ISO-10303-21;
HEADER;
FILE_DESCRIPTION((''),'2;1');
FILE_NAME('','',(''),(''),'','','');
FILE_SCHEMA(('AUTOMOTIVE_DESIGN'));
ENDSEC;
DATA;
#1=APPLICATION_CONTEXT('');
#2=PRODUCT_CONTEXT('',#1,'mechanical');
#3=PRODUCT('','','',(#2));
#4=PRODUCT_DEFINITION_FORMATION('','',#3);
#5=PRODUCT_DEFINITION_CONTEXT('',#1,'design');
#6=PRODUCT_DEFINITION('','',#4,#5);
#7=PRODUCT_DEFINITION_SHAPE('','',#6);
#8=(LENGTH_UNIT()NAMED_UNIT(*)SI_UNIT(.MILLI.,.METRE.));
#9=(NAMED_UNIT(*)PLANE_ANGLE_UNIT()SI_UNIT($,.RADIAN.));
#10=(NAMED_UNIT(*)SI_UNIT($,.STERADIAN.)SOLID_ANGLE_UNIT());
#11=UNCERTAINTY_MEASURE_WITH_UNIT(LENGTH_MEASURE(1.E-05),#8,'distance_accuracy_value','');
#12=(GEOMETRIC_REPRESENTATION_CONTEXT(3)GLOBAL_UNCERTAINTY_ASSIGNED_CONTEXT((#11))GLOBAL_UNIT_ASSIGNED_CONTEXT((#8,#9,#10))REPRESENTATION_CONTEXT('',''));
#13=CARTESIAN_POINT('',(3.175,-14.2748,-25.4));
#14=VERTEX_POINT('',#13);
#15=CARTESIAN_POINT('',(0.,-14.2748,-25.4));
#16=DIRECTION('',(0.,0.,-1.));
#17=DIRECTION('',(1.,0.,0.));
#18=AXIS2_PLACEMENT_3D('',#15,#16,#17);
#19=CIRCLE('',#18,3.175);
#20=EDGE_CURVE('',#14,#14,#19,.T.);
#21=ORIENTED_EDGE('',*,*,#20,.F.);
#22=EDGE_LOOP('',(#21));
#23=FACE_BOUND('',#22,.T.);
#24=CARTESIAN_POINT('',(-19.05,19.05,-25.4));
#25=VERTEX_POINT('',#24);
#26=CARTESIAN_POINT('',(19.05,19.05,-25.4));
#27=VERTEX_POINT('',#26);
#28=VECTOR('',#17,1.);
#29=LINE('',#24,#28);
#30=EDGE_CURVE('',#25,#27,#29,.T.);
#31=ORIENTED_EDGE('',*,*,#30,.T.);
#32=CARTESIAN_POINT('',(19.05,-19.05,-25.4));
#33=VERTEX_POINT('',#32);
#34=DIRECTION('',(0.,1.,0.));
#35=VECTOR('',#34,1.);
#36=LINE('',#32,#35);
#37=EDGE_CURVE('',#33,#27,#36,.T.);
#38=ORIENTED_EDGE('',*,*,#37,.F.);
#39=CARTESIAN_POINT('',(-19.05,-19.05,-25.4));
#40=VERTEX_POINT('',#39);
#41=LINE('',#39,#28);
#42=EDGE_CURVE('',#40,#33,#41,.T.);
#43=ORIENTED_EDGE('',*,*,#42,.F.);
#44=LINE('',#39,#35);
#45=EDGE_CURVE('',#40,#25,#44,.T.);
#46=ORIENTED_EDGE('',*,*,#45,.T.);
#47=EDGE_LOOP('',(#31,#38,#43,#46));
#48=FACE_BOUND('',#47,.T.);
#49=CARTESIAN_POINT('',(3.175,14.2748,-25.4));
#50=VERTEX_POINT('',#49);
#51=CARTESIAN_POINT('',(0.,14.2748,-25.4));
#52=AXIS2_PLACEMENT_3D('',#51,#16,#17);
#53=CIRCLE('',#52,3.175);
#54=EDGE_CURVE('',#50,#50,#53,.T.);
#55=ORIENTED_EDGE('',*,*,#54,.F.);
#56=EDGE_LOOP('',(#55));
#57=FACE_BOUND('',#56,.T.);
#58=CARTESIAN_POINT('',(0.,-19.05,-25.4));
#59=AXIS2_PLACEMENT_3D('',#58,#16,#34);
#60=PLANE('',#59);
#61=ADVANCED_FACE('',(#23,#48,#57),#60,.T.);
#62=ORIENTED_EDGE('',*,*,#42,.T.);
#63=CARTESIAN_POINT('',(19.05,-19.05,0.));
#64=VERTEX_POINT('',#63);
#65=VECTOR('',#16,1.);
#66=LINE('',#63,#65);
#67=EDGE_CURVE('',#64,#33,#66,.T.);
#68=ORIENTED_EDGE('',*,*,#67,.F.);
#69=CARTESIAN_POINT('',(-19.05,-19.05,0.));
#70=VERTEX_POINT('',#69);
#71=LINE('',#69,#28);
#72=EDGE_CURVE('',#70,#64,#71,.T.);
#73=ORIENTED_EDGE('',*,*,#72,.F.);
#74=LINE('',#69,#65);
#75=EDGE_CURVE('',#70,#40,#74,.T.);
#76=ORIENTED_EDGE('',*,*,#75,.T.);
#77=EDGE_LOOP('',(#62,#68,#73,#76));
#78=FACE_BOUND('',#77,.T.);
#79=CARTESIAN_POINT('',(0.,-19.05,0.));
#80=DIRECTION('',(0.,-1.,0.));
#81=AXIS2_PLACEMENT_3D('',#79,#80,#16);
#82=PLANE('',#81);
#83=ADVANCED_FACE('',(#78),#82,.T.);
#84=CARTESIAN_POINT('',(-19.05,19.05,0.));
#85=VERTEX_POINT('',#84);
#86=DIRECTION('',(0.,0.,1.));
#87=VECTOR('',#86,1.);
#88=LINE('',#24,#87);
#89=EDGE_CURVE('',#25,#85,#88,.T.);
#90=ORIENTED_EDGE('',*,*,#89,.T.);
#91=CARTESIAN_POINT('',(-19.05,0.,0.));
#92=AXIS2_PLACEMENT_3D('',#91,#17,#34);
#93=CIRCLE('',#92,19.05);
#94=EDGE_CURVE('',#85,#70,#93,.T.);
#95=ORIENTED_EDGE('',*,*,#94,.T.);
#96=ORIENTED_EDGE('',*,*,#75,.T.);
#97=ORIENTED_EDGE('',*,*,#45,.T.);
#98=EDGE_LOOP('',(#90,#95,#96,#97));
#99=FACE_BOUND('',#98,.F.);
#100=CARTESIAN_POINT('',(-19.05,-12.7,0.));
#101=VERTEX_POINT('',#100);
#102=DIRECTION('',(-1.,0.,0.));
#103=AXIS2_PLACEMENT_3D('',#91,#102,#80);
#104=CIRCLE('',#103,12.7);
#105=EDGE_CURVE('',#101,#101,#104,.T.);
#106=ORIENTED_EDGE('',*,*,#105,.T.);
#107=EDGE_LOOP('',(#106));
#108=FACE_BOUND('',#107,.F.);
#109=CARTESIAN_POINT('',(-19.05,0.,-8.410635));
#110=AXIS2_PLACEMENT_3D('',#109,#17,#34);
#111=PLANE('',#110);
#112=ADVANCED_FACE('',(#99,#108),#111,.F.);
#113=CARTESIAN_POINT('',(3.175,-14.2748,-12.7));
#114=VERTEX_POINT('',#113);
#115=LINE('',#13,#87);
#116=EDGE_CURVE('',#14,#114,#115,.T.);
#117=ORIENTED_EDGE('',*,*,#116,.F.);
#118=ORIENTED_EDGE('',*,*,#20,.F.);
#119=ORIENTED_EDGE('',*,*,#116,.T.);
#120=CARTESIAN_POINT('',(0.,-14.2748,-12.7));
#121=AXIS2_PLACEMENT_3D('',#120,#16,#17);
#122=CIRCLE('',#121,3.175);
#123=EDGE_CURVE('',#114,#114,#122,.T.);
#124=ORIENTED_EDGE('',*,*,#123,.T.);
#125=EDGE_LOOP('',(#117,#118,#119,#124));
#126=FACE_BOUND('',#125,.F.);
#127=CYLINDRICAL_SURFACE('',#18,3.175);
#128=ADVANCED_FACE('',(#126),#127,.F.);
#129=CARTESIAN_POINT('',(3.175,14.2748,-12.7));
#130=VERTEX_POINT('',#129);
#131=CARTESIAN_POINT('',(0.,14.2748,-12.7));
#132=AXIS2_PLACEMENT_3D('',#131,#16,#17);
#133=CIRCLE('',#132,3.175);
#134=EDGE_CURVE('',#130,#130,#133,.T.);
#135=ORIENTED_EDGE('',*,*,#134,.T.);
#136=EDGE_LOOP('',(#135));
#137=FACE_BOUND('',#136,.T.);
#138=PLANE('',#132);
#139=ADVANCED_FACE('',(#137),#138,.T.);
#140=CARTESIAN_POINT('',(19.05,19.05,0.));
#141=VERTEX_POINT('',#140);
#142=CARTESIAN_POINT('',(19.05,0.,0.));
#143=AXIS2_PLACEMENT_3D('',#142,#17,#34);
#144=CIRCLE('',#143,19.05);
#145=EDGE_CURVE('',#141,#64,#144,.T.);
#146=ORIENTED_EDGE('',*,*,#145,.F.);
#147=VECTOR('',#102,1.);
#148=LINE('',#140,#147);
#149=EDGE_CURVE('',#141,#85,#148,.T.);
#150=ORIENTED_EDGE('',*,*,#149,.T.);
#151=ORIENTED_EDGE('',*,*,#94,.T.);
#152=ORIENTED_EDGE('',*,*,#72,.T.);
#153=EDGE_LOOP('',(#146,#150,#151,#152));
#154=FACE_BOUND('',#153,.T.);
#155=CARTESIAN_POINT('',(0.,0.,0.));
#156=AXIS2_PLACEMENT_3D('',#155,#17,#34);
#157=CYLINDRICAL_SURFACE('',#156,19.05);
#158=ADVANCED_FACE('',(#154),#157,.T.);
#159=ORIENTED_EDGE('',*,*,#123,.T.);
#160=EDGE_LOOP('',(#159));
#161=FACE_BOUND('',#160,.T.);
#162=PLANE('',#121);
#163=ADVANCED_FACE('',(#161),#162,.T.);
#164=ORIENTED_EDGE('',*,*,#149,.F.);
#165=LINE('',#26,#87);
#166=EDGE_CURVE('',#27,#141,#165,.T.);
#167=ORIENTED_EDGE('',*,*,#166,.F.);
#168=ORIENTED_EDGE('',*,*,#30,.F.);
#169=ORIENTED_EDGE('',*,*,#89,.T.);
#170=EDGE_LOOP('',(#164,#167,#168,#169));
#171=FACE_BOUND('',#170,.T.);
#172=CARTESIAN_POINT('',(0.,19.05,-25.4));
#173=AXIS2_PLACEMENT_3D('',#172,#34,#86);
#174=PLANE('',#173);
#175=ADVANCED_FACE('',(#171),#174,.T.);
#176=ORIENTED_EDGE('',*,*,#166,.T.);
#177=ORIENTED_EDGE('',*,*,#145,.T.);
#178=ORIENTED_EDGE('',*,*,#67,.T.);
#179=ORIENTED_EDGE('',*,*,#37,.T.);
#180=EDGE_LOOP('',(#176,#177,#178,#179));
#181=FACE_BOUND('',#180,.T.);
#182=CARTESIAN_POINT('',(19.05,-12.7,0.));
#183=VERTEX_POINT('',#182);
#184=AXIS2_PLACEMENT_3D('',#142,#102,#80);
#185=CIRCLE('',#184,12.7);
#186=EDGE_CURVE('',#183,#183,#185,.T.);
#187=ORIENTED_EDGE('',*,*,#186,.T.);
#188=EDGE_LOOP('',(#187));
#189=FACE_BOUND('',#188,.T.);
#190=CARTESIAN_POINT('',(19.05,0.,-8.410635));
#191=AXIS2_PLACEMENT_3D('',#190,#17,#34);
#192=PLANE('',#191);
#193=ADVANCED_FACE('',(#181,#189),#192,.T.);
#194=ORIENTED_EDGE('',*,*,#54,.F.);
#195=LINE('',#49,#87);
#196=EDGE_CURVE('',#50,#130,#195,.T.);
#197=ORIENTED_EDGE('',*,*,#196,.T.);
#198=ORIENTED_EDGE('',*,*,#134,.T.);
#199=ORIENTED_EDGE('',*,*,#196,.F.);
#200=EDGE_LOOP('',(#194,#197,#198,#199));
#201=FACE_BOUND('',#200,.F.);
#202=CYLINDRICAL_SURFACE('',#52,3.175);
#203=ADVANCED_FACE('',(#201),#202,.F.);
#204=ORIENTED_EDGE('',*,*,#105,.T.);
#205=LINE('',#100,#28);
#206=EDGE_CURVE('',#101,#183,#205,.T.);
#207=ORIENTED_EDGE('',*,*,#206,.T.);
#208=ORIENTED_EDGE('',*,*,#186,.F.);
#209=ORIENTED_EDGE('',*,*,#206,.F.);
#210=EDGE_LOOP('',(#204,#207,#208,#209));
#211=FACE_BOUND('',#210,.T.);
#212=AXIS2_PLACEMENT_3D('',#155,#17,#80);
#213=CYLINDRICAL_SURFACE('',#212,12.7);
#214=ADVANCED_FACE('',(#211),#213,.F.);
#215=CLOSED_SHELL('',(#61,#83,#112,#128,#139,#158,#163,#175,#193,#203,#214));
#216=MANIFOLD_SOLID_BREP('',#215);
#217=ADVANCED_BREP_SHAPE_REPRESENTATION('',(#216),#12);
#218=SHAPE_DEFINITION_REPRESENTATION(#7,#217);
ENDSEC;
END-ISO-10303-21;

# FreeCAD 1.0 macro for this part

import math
import FreeCAD as App
import Part
import Sketcher
Q = App.Units.Quantity

doc = App.newDocument("Part")
body = doc.addObject("PartDesign::Body", "Body")

sketch1 = body.newObject("Sketcher::SketchObject", "Sketch")
sketch1.AttachmentSupport = (doc.getObject("YZ_Plane"), [""])
sketch1.MapMode = "FlatFace"
sketch1.addGeometry([
    Part.ArcOfCircle(Part.Circle(App.Vector(0, 0, 0), App.Vector(0, 0, 1), 19), math.radians(0), math.radians(180)),
    Part.LineSegment(App.Vector(-19, 0, 0), App.Vector(-19, -25, 0)),
    Part.LineSegment(App.Vector(-19, -25, 0), App.Vector(19, -25, 0)),
    Part.LineSegment(App.Vector(19, -25, 0), App.Vector(19, 0, 0)),
    Part.Circle(App.Vector(0, 0, 0), App.Vector(0, 0, 1), 13),
], False)
sketch1.addConstraint([
    Sketcher.Constraint("Tangent", 0, 2, 1, 1),
    Sketcher.Constraint("Coincident", 1, 2, 2, 1),
    Sketcher.Constraint("Coincident", 2, 2, 3, 1),
    Sketcher.Constraint("Tangent", 3, 2, 0, 1),
    Sketcher.Constraint("Vertical", 1),
    Sketcher.Constraint("Horizontal", 2),
    Sketcher.Constraint("Vertical", 3),
    Sketcher.Constraint("Coincident", 0, 3, -1, 1),
    Sketcher.Constraint("Coincident", 4, 3, -1, 1),
    Sketcher.Constraint("Diameter", 4, Q("1 in")),
    Sketcher.Constraint("DistanceY", 1, 2, 1, 1, Q("1 in")),
    Sketcher.Constraint("Radius", 0, Q("0.75 in")),
])
pad1 = body.newObject("PartDesign::Pad", "Pad")
pad1.Profile = sketch1
pad1.Length = Q("1.5 in")
pad1.Midplane = True

sketch2 = body.newObject("Sketcher::SketchObject", "Sketch001")
sketch2.AttachmentSupport = (doc.getObject("XY_Plane"), [""])
sketch2.MapMode = "FlatFace"
sketch2.AttachmentOffset = App.Placement(App.Vector(0, 0, -1 * 25.4), App.Rotation())
sketch2.addGeometry([
    Part.Circle(App.Vector(0, -14.3, 0), App.Vector(0, 0, 1), 3.2),
    Part.Circle(App.Vector(0, 14.3, 0), App.Vector(0, 0, 1), 3.2),
], False)
sketch2.addConstraint([
    Sketcher.Constraint("Equal", 0, 1),
    Sketcher.Constraint("Symmetric", 0, 3, 1, 3, -1, 1),
    Sketcher.Constraint("PointOnObject", 0, 3, -2),
    Sketcher.Constraint("Diameter", 0, Q("0.25 in")),
    Sketcher.Constraint("DistanceY", 0, 3, -1, 1, Q("0.562 in")),
])
pocket1 = body.newObject("PartDesign::Pocket", "Pocket")
pocket1.Profile = sketch2
pocket1.Length = Q("0.5 in")
pocket1.Reversed = True

doc.recompute()
